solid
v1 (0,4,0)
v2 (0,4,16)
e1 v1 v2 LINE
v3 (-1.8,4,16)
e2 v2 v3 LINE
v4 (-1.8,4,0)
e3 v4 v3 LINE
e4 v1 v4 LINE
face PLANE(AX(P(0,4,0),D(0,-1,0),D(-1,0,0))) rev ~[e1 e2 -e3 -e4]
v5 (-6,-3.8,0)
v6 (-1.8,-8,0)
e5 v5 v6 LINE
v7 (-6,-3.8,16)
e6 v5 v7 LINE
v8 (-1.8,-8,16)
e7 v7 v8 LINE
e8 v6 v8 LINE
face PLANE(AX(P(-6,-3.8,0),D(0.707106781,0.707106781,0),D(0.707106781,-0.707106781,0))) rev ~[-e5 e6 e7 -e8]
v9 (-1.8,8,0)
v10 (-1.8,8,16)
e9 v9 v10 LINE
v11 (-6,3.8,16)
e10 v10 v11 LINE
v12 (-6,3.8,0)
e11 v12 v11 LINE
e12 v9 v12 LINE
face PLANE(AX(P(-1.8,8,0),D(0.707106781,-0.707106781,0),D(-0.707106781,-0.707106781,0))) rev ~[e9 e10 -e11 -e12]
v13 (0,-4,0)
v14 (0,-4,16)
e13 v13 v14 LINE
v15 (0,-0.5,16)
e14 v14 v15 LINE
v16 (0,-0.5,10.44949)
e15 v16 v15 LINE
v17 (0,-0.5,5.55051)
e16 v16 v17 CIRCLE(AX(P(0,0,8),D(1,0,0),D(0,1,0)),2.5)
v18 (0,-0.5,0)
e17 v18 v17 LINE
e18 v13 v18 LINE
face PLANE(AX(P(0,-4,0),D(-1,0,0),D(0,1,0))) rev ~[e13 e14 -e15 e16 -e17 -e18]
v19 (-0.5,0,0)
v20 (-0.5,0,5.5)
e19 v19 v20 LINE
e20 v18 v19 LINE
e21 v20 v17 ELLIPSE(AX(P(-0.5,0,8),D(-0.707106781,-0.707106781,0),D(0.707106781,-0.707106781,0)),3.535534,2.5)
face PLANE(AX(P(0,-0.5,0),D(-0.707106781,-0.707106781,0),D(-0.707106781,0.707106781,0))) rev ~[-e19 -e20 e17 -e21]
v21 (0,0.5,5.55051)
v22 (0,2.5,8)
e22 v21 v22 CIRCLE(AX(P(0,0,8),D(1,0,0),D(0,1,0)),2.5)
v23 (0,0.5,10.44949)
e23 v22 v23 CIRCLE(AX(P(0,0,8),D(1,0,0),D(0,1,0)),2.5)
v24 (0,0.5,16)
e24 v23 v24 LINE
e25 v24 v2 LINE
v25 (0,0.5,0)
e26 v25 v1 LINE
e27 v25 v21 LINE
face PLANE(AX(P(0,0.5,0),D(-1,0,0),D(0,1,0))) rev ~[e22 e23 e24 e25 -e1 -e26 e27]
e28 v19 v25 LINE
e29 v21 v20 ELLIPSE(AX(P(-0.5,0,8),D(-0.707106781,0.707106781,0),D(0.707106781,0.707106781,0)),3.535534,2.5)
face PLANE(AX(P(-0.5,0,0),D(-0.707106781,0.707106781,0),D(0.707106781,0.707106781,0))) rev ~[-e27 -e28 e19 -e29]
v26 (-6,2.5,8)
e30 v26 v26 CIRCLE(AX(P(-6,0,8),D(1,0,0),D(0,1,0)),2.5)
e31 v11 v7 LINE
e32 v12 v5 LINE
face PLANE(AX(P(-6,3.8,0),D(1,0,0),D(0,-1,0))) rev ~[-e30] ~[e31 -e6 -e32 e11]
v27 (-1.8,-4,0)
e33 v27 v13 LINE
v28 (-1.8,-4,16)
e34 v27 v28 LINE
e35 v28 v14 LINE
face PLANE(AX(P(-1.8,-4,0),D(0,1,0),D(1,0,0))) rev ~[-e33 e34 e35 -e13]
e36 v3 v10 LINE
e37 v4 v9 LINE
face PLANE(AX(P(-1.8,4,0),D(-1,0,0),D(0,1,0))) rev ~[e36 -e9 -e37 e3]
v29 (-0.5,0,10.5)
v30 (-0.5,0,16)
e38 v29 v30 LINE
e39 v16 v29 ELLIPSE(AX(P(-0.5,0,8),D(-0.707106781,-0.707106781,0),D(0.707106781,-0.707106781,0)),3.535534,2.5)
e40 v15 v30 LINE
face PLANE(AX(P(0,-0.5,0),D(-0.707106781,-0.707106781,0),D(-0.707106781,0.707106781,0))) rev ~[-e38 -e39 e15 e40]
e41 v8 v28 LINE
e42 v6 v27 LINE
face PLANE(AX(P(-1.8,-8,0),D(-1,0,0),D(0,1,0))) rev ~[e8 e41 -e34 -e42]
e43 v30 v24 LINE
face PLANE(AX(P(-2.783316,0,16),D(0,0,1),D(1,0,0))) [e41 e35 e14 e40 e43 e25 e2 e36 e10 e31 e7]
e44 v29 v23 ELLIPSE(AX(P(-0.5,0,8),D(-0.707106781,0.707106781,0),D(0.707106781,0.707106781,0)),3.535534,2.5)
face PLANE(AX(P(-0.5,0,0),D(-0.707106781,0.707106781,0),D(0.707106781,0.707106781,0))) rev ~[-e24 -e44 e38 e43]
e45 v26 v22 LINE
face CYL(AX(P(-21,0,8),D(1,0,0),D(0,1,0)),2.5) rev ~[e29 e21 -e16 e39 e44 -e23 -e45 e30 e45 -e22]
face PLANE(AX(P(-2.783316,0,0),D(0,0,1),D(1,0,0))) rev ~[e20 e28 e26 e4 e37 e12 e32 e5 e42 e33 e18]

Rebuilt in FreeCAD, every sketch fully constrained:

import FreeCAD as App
import Part
import Sketcher

V = App.Vector

doc = App.newDocument("Part")
params = doc.addObject("Spreadsheet::Sheet", "Params")
for row, (alias, value) in enumerate([
    ("sketch1_height", "4 mm"),
    ("sketch1_width", "1.8 mm"),
    ("sketch1_height2", "3.5 mm"),
    ("sketch1_height3", "7.6 mm"),
    ("pad1_length", "16 mm"),
    ("sketch2_diameter", "5 mm"),
    ("hole_diameter", "5 mm"),
    ("hole_depth", "15 mm"),
], start=1):
    params.set(f"A{row}", alias)
    params.set(f"B{row}", "=" + value)
    params.setAlias(f"B{row}", alias)

body = doc.addObject("PartDesign::Body", "Body")

# Sketch on XY plane
sketch1 = body.newObject("Sketcher::SketchObject", "Sketch")
sketch1.AttachmentSupport = (doc.getObject("XY_Plane"), [""])
sketch1.MapMode = "FlatFace"
sketch1.addGeometry([
    Part.LineSegment(V(-0.5, 0, 0), V(0, 0.5, 0)),  # 0
    Part.LineSegment(V(0, 0.5, 0), V(0, 4, 0)),  # 1
    Part.LineSegment(V(0, 4, 0), V(-1.8, 4, 0)),  # 2
    Part.LineSegment(V(-1.8, 4, 0), V(-1.8, 8, 0)),  # 3
    Part.LineSegment(V(-1.8, 8, 0), V(-6, 3.8, 0)),  # 4
    Part.LineSegment(V(-6, 3.8, 0), V(-6, -3.8, 0)),  # 5
    Part.LineSegment(V(-6, -3.8, 0), V(-1.8, -8, 0)),  # 6
    Part.LineSegment(V(-1.8, -8, 0), V(-1.8, -4, 0)),  # 7
    Part.LineSegment(V(-1.8, -4, 0), V(0, -4, 0)),  # 8
    Part.LineSegment(V(0, -4, 0), V(0, -0.5, 0)),  # 9
    Part.LineSegment(V(0, -0.5, 0), V(-0.5, 0, 0)),  # 10
], False)
sketch1.addConstraint([
    Sketcher.Constraint("Coincident", 0, 2, 1, 1),
    Sketcher.Constraint("Coincident", 1, 2, 2, 1),
    Sketcher.Constraint("Coincident", 2, 2, 3, 1),
    Sketcher.Constraint("Coincident", 3, 2, 4, 1),
    Sketcher.Constraint("Coincident", 4, 2, 5, 1),
    Sketcher.Constraint("Coincident", 5, 2, 6, 1),
    Sketcher.Constraint("Coincident", 6, 2, 7, 1),
    Sketcher.Constraint("Coincident", 7, 2, 8, 1),
    Sketcher.Constraint("Coincident", 8, 2, 9, 1),
    Sketcher.Constraint("Coincident", 9, 2, 10, 1),
    Sketcher.Constraint("Coincident", 10, 2, 0, 1),
    Sketcher.Constraint("Vertical", 1),
    Sketcher.Constraint("Horizontal", 2),
    Sketcher.Constraint("Vertical", 3),
    Sketcher.Constraint("Vertical", 5),
    Sketcher.Constraint("Vertical", 7),
    Sketcher.Constraint("Horizontal", 8),
    Sketcher.Constraint("Vertical", 9),
    Sketcher.Constraint("Symmetric", 1, 2, 8, 2, -1, 1),
    Sketcher.Constraint("Symmetric", 3, 2, 6, 2, -1),
    Sketcher.Constraint("Symmetric", 0, 2, 9, 2, -1),
    Sketcher.Constraint("PointOnObject", 10, 2, -1),
    Sketcher.Constraint("Parallel", 0, 4),
    Sketcher.Constraint("Perpendicular", 4, 6),
    Sketcher.Constraint("Parallel", 6, 10),
    Sketcher.Constraint("DistanceY", 3, 1, 3, 2, 4.0),
    Sketcher.Constraint("DistanceX", 2, 2, 2, 1, 1.8),
    Sketcher.Constraint("DistanceY", 1, 1, 1, 2, 3.5),
    Sketcher.Constraint("DistanceY", 5, 2, 5, 1, 7.6),
    Sketcher.Constraint("DistanceY", -1, 1, 1, 2, 4.0),
])
sketch1.setExpression("Constraints[25]", "Params.sketch1_height")
sketch1.setExpression("Constraints[26]", "Params.sketch1_width")
sketch1.setExpression("Constraints[27]", "Params.sketch1_height2")
sketch1.setExpression("Constraints[28]", "Params.sketch1_height3")
pad1 = body.newObject("PartDesign::Pad", "Pad")
pad1.Profile = sketch1
pad1.setExpression("Length", "Params.pad1_length")

# Sketch on YZ plane
sketch2 = body.newObject("Sketcher::SketchObject", "Sketch001")
sketch2.AttachmentSupport = (doc.getObject("YZ_Plane"), [""])
sketch2.MapMode = "FlatFace"
sketch2.AttachmentOffset = App.Placement(V(0, 0, -6), App.Rotation())
sketch2.addGeometry(Part.Circle(V(0, 8, 0), V(0, 0, 1), 2.5), False)
sketch2.addConstraint([
    Sketcher.Constraint("PointOnObject", 0, 3, -2),
    Sketcher.Constraint("Diameter", 0, 5.0),
    Sketcher.Constraint("DistanceY", -1, 1, 0, 3, 8.0),
])
sketch2.setExpression("Constraints[1]", "Params.sketch2_diameter")
doc.recompute()
hole = body.newObject("PartDesign::Hole", "Hole")
hole.Profile = sketch2
hole.ThreadType = "None"
hole.setExpression("Diameter", "Params.hole_diameter")
hole.DepthType = "Dimension"
hole.setExpression("Depth", "Params.hole_depth")
hole.DrillPoint = "Angled"
hole.DrillPointAngle = 118
hole.Reversed = True

doc.recompute()
